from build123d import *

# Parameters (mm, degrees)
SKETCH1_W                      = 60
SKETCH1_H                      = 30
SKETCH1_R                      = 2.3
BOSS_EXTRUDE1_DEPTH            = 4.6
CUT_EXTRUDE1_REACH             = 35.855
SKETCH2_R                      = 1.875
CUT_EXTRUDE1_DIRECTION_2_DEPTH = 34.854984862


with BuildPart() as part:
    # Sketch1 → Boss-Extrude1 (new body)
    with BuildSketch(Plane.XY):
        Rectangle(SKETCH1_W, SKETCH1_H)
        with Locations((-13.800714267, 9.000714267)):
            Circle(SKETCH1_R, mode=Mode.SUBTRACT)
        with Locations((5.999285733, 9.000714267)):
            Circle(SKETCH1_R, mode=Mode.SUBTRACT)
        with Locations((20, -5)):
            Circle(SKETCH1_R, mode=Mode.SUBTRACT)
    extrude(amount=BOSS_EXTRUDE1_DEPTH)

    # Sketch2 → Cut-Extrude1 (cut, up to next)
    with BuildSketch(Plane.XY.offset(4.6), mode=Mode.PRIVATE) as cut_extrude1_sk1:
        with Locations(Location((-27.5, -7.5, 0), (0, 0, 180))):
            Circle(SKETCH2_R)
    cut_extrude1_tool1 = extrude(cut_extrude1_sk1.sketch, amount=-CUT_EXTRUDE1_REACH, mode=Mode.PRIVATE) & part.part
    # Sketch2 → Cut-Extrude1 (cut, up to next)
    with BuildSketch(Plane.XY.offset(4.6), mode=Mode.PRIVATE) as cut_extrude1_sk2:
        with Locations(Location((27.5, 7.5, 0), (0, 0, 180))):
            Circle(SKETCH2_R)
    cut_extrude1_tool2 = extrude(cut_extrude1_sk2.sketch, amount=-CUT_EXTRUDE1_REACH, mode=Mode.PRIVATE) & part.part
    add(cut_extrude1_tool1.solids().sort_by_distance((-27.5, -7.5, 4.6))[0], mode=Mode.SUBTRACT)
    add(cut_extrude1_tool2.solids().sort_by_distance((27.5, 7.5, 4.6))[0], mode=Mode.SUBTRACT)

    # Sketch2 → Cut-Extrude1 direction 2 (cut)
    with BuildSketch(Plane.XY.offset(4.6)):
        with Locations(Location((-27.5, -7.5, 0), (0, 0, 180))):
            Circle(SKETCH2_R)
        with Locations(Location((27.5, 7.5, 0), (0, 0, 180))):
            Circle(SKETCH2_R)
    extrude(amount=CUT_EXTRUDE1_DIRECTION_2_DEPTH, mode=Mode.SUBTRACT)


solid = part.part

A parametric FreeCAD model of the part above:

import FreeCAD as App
import Part
import Sketcher


def add_polygon(sketch, points):
    """Adds a closed chain of lines whose ends are joined by coincident constraints."""
    first, n = sketch.GeometryCount, len(points)
    for a, b in zip(points, points[1:] + points[:1]):
        sketch.addGeometry(Part.LineSegment(App.Vector(*a, 0), App.Vector(*b, 0)), False)
    for i in range(n):
        sketch.addConstraint(Sketcher.Constraint("Coincident", first + i, 2, first + (i + 1) % n, 1))

doc = App.newDocument("Part")
body = doc.addObject("PartDesign::Body", "Body")

# Sketch on XY plane
sketch1 = body.newObject("Sketcher::SketchObject", "Sketch")
sketch1.AttachmentSupport = (doc.getObject("XY_Plane"), [""])
sketch1.MapMode = "FlatFace"
add_polygon(sketch1, [(-30, 15), (-30, -15), (30, -15), (30, 15)])  # lines 0-3
sketch1.addGeometry(Part.Circle(App.Vector(20, -5, 0), App.Vector(0, 0, 1), 2.3), False)  # 4
sketch1.addGeometry(Part.Circle(App.Vector(-13.800714, 9.000714, 0), App.Vector(0, 0, 1), 2.3), False)  # 5
sketch1.addGeometry(Part.Circle(App.Vector(5.999286, 9.000714, 0), App.Vector(0, 0, 1), 2.3), False)  # 6
sketch1.addConstraint(Sketcher.Constraint("Vertical", 0))
sketch1.addConstraint(Sketcher.Constraint("Horizontal", 1))
sketch1.addConstraint(Sketcher.Constraint("Vertical", 2))
sketch1.addConstraint(Sketcher.Constraint("Horizontal", 3))
sketch1.addConstraint(Sketcher.Constraint("Equal", 4, 5))
sketch1.addConstraint(Sketcher.Constraint("Equal", 5, 6))
sketch1.addConstraint(Sketcher.Constraint("Symmetric", 0, 2, 2, 2, -1, 1))
sketch1.addConstraint(Sketcher.Constraint("Horizontal", 5, 3, 6, 3))
sketch1.addConstraint(Sketcher.Constraint("Diameter", 4, 4.6))
sketch1.addConstraint(Sketcher.Constraint("DistanceX", 1, 1, 1, 2, 60.0))
sketch1.addConstraint(Sketcher.Constraint("DistanceY", 0, 2, 0, 1, 30.0))
sketch1.addConstraint(Sketcher.Constraint("DistanceX", -1, 1, 4, 3, 20.0))
sketch1.addConstraint(Sketcher.Constraint("DistanceY", 4, 3, -1, 1, 5.0))
sketch1.addConstraint(Sketcher.Constraint("DistanceX", 5, 3, 6, 3, 19.8))
sketch1.addConstraint(Sketcher.Constraint("DistanceX", 5, 3, -1, 1, 13.800714))
sketch1.addConstraint(Sketcher.Constraint("DistanceY", -1, 1, 5, 3, 9.000714))
pad1 = body.newObject("PartDesign::Pad", "Pad")
pad1.Profile = sketch1
pad1.Length = 4.6

# Sketch on XY plane
sketch2 = body.newObject("Sketcher::SketchObject", "Sketch001")
sketch2.AttachmentSupport = (doc.getObject("XY_Plane"), [""])
sketch2.MapMode = "FlatFace"
sketch2.AttachmentOffset = App.Placement(App.Vector(0, 0, 4.6), App.Rotation())
sketch2.addGeometry(Part.Circle(App.Vector(-27.5, -7.5, 0), App.Vector(0, 0, 1), 1.875), False)
sketch2.addConstraint(Sketcher.Constraint("Diameter", 0, 3.75))
sketch2.addConstraint(Sketcher.Constraint("DistanceX", 0, 3, -1, 1, 27.5))
sketch2.addConstraint(Sketcher.Constraint("DistanceY", 0, 3, -1, 1, 7.5))
pocket1 = body.newObject("PartDesign::Pocket", "Pocket")
pocket1.Profile = sketch2
pocket1.Type = "UpToFirst"

# Sketch on XY plane
sketch3 = body.newObject("Sketcher::SketchObject", "Sketch002")
sketch3.AttachmentSupport = (doc.getObject("XY_Plane"), [""])
sketch3.MapMode = "FlatFace"
sketch3.AttachmentOffset = App.Placement(App.Vector(0, 0, 4.6), App.Rotation())
sketch3.addGeometry(Part.Circle(App.Vector(27.5, 7.5, 0), App.Vector(0, 0, 1), 1.875), False)
sketch3.addConstraint(Sketcher.Constraint("Diameter", 0, 3.75))
sketch3.addConstraint(Sketcher.Constraint("DistanceX", -1, 1, 0, 3, 27.5))
sketch3.addConstraint(Sketcher.Constraint("DistanceY", -1, 1, 0, 3, 7.5))
pocket2 = body.newObject("PartDesign::Pocket", "Pocket001")
pocket2.Profile = sketch3
pocket2.Type = "UpToFirst"

# Sketch on XY plane
sketch4 = body.newObject("Sketcher::SketchObject", "Sketch003")
sketch4.AttachmentSupport = (doc.getObject("XY_Plane"), [""])
sketch4.MapMode = "FlatFace"
sketch4.AttachmentOffset = App.Placement(App.Vector(0, 0, 4.6), App.Rotation())
sketch4.addGeometry(Part.Circle(App.Vector(-27.5, -7.5, 0), App.Vector(0, 0, 1), 1.875), False)
sketch4.addGeometry(Part.Circle(App.Vector(27.5, 7.5, 0), App.Vector(0, 0, 1), 1.875), False)
sketch4.addConstraint(Sketcher.Constraint("Equal", 0, 1))
sketch4.addConstraint(Sketcher.Constraint("Symmetric", 0, 3, 1, 3, -1, 1))
sketch4.addConstraint(Sketcher.Constraint("Diameter", 0, 3.75))
sketch4.addConstraint(Sketcher.Constraint("DistanceX", 0, 3, 1, 3, 55.0))
sketch4.addConstraint(Sketcher.Constraint("DistanceY", 0, 3, 1, 3, 15.0))
pocket3 = body.newObject("PartDesign::Pocket", "Pocket002")
pocket3.Profile = sketch4
pocket3.Length = 34.854985
pocket3.Reversed = True

doc.recompute()
